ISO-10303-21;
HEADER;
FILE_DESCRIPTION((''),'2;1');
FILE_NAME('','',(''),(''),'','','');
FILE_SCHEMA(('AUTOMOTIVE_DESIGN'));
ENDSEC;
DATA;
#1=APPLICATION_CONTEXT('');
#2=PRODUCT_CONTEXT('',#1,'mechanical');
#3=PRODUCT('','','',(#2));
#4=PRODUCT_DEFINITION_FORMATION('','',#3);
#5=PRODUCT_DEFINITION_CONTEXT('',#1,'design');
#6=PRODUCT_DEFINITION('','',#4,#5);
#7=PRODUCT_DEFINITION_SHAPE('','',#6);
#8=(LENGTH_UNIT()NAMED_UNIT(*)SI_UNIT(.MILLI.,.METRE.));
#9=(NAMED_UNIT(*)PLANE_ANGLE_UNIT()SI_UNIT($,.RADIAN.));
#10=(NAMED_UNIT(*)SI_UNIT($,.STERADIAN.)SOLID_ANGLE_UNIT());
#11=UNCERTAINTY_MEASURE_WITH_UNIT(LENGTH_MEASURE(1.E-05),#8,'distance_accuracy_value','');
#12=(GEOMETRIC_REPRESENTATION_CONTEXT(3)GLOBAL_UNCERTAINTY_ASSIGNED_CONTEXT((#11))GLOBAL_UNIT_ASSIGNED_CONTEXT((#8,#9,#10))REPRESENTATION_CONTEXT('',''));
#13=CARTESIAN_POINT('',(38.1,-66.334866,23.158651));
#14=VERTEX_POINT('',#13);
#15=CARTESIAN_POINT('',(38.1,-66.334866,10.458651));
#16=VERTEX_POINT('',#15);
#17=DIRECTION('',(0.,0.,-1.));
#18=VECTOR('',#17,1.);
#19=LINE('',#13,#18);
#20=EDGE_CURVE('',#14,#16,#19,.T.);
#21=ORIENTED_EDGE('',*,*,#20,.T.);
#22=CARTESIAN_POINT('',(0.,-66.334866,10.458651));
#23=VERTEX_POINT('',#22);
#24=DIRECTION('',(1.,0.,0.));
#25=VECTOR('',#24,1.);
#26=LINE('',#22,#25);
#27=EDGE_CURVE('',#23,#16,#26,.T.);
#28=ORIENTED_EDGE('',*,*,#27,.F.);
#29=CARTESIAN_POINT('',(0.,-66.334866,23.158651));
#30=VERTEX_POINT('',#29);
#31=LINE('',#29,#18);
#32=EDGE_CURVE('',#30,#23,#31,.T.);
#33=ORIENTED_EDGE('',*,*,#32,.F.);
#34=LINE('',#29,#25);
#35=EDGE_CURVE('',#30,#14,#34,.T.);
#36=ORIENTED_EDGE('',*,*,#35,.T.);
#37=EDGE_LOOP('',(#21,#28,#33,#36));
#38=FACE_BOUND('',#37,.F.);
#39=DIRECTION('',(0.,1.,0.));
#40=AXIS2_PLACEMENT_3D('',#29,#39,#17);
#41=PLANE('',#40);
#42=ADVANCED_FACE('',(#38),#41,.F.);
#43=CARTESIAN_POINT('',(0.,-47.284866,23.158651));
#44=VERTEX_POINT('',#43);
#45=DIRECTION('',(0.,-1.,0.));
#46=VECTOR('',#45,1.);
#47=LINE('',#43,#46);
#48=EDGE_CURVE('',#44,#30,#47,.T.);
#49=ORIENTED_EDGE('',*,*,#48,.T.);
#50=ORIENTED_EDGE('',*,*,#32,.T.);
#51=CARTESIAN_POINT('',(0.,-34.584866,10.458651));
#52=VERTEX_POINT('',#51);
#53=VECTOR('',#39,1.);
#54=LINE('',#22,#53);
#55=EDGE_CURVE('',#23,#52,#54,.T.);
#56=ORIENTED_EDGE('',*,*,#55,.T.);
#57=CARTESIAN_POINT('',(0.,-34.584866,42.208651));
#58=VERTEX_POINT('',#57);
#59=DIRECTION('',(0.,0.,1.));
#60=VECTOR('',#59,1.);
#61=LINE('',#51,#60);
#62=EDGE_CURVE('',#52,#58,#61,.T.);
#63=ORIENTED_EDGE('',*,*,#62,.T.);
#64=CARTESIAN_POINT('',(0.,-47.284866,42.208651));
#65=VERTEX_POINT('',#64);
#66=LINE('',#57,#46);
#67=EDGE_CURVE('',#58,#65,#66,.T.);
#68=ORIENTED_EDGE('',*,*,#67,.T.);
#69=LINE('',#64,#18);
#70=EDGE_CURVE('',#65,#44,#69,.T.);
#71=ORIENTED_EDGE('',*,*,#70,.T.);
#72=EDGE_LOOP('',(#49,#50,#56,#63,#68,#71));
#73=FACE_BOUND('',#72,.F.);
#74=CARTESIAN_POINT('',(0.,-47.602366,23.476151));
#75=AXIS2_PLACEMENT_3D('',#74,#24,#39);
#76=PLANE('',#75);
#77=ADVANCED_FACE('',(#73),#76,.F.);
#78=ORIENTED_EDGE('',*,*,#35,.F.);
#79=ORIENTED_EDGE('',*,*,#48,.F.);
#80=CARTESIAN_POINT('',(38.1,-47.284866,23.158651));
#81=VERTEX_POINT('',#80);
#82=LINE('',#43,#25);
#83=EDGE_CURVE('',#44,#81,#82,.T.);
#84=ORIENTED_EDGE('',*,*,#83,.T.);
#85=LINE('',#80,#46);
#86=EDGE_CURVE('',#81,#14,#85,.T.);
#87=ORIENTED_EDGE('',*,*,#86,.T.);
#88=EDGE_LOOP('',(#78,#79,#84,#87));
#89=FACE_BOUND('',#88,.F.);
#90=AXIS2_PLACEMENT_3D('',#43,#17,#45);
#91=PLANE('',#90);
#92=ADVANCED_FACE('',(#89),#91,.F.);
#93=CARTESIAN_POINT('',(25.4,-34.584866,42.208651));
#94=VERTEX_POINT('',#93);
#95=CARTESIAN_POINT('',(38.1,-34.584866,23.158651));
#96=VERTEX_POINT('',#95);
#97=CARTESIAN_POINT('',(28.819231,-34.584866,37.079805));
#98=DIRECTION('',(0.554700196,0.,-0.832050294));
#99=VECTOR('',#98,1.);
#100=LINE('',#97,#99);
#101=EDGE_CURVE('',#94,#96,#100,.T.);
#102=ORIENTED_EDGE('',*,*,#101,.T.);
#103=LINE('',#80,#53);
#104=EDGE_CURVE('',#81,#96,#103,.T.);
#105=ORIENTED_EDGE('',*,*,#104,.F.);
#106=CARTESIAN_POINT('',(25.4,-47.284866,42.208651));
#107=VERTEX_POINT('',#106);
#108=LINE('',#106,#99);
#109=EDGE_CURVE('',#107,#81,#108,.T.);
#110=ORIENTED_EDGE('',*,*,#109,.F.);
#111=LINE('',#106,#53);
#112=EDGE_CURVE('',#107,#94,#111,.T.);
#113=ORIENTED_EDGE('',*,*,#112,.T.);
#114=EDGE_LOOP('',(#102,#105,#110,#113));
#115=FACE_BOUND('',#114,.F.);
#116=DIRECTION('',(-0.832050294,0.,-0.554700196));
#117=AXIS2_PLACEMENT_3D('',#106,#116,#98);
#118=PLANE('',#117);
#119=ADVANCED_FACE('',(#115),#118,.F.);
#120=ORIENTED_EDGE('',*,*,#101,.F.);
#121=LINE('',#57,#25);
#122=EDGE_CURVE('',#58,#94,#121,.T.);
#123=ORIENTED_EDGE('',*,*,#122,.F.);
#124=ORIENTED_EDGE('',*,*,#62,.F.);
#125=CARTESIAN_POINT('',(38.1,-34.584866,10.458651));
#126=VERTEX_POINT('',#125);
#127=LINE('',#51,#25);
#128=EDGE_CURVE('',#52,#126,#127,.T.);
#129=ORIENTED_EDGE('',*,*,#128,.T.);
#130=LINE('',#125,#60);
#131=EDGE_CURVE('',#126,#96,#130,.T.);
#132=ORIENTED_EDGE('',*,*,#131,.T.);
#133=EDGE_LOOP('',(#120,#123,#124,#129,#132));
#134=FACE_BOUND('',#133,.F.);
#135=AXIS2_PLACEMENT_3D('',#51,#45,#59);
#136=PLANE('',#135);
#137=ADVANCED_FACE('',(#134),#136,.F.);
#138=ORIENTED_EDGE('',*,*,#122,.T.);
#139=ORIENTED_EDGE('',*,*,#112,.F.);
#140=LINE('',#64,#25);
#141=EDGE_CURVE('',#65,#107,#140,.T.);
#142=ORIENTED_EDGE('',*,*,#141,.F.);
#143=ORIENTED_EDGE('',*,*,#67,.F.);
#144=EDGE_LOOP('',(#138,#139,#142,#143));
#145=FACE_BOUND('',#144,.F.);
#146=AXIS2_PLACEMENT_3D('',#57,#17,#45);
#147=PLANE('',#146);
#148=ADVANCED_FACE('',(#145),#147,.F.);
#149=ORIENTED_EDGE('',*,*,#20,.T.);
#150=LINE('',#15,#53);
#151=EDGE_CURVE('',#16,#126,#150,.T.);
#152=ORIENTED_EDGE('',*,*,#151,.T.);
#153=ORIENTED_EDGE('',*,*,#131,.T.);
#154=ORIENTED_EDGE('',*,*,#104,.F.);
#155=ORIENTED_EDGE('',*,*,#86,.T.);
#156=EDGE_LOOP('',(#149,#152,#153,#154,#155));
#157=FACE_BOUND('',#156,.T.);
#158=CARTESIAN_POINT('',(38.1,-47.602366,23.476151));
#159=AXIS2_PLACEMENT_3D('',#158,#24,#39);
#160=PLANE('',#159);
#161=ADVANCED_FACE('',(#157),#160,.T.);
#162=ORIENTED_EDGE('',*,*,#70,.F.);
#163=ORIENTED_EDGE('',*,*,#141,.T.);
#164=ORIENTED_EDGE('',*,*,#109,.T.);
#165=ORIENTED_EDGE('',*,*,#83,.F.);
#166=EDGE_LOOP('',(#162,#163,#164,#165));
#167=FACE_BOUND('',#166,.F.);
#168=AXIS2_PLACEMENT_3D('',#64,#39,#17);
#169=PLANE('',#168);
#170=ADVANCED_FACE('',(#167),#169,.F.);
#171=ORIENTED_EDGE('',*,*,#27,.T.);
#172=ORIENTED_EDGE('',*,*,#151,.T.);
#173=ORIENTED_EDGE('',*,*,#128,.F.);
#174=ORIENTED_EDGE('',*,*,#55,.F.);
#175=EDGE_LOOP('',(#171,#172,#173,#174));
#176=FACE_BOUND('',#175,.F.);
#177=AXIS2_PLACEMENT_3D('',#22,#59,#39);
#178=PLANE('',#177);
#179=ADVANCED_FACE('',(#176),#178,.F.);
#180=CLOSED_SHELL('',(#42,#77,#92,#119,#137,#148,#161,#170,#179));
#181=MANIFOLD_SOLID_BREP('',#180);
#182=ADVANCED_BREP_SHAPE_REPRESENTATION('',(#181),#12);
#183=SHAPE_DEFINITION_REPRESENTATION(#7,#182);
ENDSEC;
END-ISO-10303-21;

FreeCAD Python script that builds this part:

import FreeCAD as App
import Part
import Sketcher

V = App.Vector
Q = App.Units.Quantity


def add_polygon(sketch, points):
    """Adds a closed chain of lines whose ends are joined by coincident constraints."""
    first, n = sketch.GeometryCount, len(points)
    for a, b in zip(points, points[1:] + points[:1]):
        sketch.addGeometry(Part.LineSegment(App.Vector(*a, 0), App.Vector(*b, 0)), False)
    for i in range(n):
        sketch.addConstraint(Sketcher.Constraint("Coincident", first + i, 2, first + (i + 1) % n, 1))

doc = App.newDocument("Part")
body = doc.addObject("PartDesign::Body", "Body")

# Sketch on YZ plane
sketch1 = body.newObject("Sketcher::SketchObject", "Sketch")
sketch1.AttachmentSupport = (doc.getObject("YZ_Plane"), [""])
sketch1.MapMode = "FlatFace"
add_polygon(sketch1, [(-35, 42), (-47, 42), (-47, 23), (-66, 23), (-66, 10), (-35, 10)])  # lines 0-5
sketch1.addConstraint([
    Sketcher.Constraint("Horizontal", 0),
    Sketcher.Constraint("Vertical", 1),
    Sketcher.Constraint("Horizontal", 2),
    Sketcher.Constraint("Vertical", 3),
    Sketcher.Constraint("Horizontal", 4),
    Sketcher.Constraint("Vertical", 5),
    Sketcher.Constraint("Equal", 2, 1),
    Sketcher.Constraint("Equal", 0, 3),
    Sketcher.Constraint("DistanceX", 0, 2, 0, 1, Q("0.5 in")),
    Sketcher.Constraint("DistanceX", 2, 2, 2, 1, Q("0.75 in")),
    Sketcher.Constraint("DistanceY", -1, 1, 0, 2, 42.208651),
    Sketcher.Constraint("DistanceX", 0, 2, -1, 1, 47.284866),
])
pad1 = body.newObject("PartDesign::Pad", "Pad")
pad1.Profile = sketch1
pad1.Length = Q("1.5 in")

# Sketch on XZ plane
sketch2 = body.newObject("Sketcher::SketchObject", "Sketch001")
sketch2.AttachmentSupport = (doc.getObject("XZ_Plane"), [""])
sketch2.MapMode = "FlatFace"
sketch2.AttachmentOffset = App.Placement(V(0, 0, 47.284866), App.Rotation())
add_polygon(sketch2, [(38, 42), (25, 42), (38, 23)])  # lines 0-2
sketch2.addConstraint([
    Sketcher.Constraint("Horizontal", 0),
    Sketcher.Constraint("Vertical", 2),
    Sketcher.Constraint("DistanceX", 0, 2, 0, 1, Q("0.5 in")),
    Sketcher.Constraint("DistanceX", -1, 1, 0, 2, Q("1 in")),
    Sketcher.Constraint("DistanceY", 2, 1, 2, 2, Q("0.75 in")),
    Sketcher.Constraint("DistanceY", -1, 1, 0, 2, 42.208651),
])
pocket1 = body.newObject("PartDesign::Pocket", "Pocket")
pocket1.Profile = sketch2
pocket1.Length = Q("1 in")

doc.recompute()
